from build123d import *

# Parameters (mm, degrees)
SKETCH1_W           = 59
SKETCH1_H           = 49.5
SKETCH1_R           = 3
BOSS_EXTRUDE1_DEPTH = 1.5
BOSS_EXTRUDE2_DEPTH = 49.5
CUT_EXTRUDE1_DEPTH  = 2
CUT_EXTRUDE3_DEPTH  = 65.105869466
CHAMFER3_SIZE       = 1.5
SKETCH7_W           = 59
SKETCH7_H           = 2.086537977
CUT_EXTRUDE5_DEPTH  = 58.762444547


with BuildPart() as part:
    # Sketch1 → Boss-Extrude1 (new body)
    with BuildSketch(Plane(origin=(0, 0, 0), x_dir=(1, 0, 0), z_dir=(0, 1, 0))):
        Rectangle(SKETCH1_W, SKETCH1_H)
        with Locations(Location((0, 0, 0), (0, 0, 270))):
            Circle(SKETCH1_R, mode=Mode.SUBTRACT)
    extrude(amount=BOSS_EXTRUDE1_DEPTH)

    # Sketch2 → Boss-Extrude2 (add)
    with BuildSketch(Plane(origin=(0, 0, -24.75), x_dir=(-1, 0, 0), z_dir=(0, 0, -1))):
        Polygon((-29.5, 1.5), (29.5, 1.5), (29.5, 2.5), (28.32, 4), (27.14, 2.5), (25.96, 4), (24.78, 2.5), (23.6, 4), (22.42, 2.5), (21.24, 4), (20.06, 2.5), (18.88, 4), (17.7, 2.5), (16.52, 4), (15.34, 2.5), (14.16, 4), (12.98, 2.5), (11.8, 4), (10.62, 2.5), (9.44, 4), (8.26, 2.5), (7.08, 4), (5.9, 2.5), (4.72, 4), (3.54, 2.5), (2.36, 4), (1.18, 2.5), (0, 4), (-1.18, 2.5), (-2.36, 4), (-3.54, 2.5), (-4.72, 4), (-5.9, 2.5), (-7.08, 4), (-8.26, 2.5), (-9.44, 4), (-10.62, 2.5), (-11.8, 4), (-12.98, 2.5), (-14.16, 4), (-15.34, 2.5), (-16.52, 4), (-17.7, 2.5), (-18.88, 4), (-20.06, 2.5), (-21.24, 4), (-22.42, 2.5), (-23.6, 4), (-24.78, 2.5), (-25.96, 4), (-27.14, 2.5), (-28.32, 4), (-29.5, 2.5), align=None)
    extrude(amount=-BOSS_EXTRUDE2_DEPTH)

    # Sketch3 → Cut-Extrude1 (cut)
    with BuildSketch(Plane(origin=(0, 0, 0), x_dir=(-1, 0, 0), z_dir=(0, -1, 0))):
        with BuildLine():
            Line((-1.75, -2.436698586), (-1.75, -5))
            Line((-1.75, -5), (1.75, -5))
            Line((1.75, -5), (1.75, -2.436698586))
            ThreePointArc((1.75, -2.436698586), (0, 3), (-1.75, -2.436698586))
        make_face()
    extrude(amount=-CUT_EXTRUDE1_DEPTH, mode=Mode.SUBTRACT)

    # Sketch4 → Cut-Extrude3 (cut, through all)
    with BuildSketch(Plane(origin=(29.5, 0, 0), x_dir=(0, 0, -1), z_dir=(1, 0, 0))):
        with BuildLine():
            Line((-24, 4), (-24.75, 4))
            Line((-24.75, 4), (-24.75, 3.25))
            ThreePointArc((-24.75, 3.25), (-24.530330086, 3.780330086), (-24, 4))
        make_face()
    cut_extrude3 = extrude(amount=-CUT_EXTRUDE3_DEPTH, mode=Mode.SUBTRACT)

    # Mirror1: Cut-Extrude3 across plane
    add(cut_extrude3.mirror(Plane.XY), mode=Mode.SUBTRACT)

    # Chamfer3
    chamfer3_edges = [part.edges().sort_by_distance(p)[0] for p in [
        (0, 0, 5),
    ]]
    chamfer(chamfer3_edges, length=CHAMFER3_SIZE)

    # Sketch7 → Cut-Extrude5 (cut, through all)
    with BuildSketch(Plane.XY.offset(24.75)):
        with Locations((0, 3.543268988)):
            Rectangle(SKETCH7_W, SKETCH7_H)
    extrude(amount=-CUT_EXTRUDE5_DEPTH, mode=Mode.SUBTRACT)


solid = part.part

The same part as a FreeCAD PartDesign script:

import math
import FreeCAD as App
import Part
import Sketcher
Q = App.Units.Quantity


def edges_at(feature, points):
    """Names of the edges that pass closest to the given points."""
    edges = feature.Shape.Edges
    near = lambda p: min(range(len(edges)), key=lambda i: edges[i].distToShape(Part.Vertex(*p))[0])
    return sorted({f"Edge{near(p) + 1}" for p in points})


def add_polygon(sketch, points):
    """Adds a closed chain of lines whose ends are joined by coincident constraints."""
    first, n = sketch.GeometryCount, len(points)
    for a, b in zip(points, points[1:] + points[:1]):
        sketch.addGeometry(Part.LineSegment(App.Vector(*a, 0), App.Vector(*b, 0)), False)
    for i in range(n):
        sketch.addConstraint(Sketcher.Constraint("Coincident", first + i, 2, first + (i + 1) % n, 1))

doc = App.newDocument("Part")
body = doc.addObject("PartDesign::Body", "Body")

sketch1 = body.newObject("Sketcher::SketchObject", "Sketch")
sketch1.AttachmentSupport = (doc.getObject("XZ_Plane"), [""])
sketch1.MapMode = "FlatFace"
add_polygon(sketch1, [(-29.5, -24.75), (-29.5, 24.75), (29.5, 24.75), (29.5, -24.75)])
sketch1.addGeometry(Part.Circle(App.Vector(0, 0, 0), App.Vector(0, 0, 1), 3), False)
sketch1.addConstraint(Sketcher.Constraint("Vertical", 0))
sketch1.addConstraint(Sketcher.Constraint("Horizontal", 1))
sketch1.addConstraint(Sketcher.Constraint("Vertical", 2))
sketch1.addConstraint(Sketcher.Constraint("Horizontal", 3))
sketch1.addConstraint(Sketcher.Constraint("Coincident", 4, 3, -1, 1))
sketch1.addConstraint(Sketcher.Constraint("Symmetric", 0, 2, 2, 2, -1, 1))
sketch1.addConstraint(Sketcher.Constraint("Diameter", 4, Q("6 mm")))
sketch1.addConstraint(Sketcher.Constraint("DistanceX", 1, 1, 1, 2, Q("59 mm")))
sketch1.addConstraint(Sketcher.Constraint("DistanceY", 0, 1, 0, 2, Q("49.5 mm")))
pad1 = body.newObject("PartDesign::Pad", "Pad")
pad1.Profile = sketch1
pad1.Length = 1.5
pad1.Reversed = True

sketch2 = body.newObject("Sketcher::SketchObject", "Sketch001")
sketch2.AttachmentSupport = (doc.getObject("XY_Plane"), [""])
sketch2.MapMode = "FlatFace"
sketch2.AttachmentOffset = App.Placement(App.Vector(0, 0, -24.75), App.Rotation())
add_polygon(sketch2, [(29.5, 1.5), (-29.5, 1.5), (-29.5, 2.5), (-28.32, 4), (-27.14, 2.5), (-25.96, 4), (-24.78, 2.5), (-23.6, 4), (-22.42, 2.5), (-21.24, 4), (-20.06, 2.5), (-18.88, 4), (-17.7, 2.5), (-16.52, 4), (-15.34, 2.5), (-14.16, 4), (-12.98, 2.5), (-11.8, 4), (-10.62, 2.5), (-9.44, 4), (-8.26, 2.5), (-7.08, 4), (-5.9, 2.5), (-4.72, 4), (-3.54, 2.5), (-2.36, 4), (-1.18, 2.5), (0, 4), (1.18, 2.5), (2.36, 4), (3.54, 2.5), (4.72, 4), (5.9, 2.5), (7.08, 4), (8.26, 2.5), (9.44, 4), (10.62, 2.5), (11.8, 4), (12.98, 2.5), (14.16, 4), (15.34, 2.5), (16.52, 4), (17.7, 2.5), (18.88, 4), (20.06, 2.5), (21.24, 4), (22.42, 2.5), (23.6, 4), (24.78, 2.5), (25.96, 4), (27.14, 2.5), (28.32, 4), (29.5, 2.5)])
sketch2.addConstraint(Sketcher.Constraint("Horizontal", 0))
sketch2.addConstraint(Sketcher.Constraint("Vertical", 1))
sketch2.addConstraint(Sketcher.Constraint("Vertical", 52))
sketch2.addConstraint(Sketcher.Constraint("Symmetric", 25, 2, 27, 2, -2))
sketch2.addConstraint(Sketcher.Constraint("Symmetric", 24, 2, 28, 2, -2))
sketch2.addConstraint(Sketcher.Constraint("Symmetric", 23, 2, 29, 2, -2))
sketch2.addConstraint(Sketcher.Constraint("Symmetric", 22, 2, 30, 2, -2))
sketch2.addConstraint(Sketcher.Constraint("Symmetric", 21, 2, 31, 2, -2))
sketch2.addConstraint(Sketcher.Constraint("Symmetric", 20, 2, 32, 2, -2))
sketch2.addConstraint(Sketcher.Constraint("Symmetric", 19, 2, 33, 2, -2))
sketch2.addConstraint(Sketcher.Constraint("Symmetric", 18, 2, 34, 2, -2))
sketch2.addConstraint(Sketcher.Constraint("Symmetric", 17, 2, 35, 2, -2))
sketch2.addConstraint(Sketcher.Constraint("Symmetric", 16, 2, 36, 2, -2))
sketch2.addConstraint(Sketcher.Constraint("Symmetric", 15, 2, 37, 2, -2))
sketch2.addConstraint(Sketcher.Constraint("Symmetric", 14, 2, 38, 2, -2))
sketch2.addConstraint(Sketcher.Constraint("Symmetric", 13, 2, 39, 2, -2))
sketch2.addConstraint(Sketcher.Constraint("Symmetric", 12, 2, 40, 2, -2))
sketch2.addConstraint(Sketcher.Constraint("Symmetric", 11, 2, 41, 2, -2))
sketch2.addConstraint(Sketcher.Constraint("Symmetric", 10, 2, 42, 2, -2))
sketch2.addConstraint(Sketcher.Constraint("Symmetric", 9, 2, 43, 2, -2))
sketch2.addConstraint(Sketcher.Constraint("Symmetric", 8, 2, 44, 2, -2))
sketch2.addConstraint(Sketcher.Constraint("Symmetric", 7, 2, 45, 2, -2))
sketch2.addConstraint(Sketcher.Constraint("Symmetric", 6, 2, 46, 2, -2))
sketch2.addConstraint(Sketcher.Constraint("Symmetric", 5, 2, 47, 2, -2))
sketch2.addConstraint(Sketcher.Constraint("Symmetric", 4, 2, 48, 2, -2))
sketch2.addConstraint(Sketcher.Constraint("Symmetric", 3, 2, 49, 2, -2))
sketch2.addConstraint(Sketcher.Constraint("Symmetric", 2, 2, 50, 2, -2))
sketch2.addConstraint(Sketcher.Constraint("Symmetric", 1, 2, 51, 2, -2))
sketch2.addConstraint(Sketcher.Constraint("PointOnObject", 26, 2, -2))
sketch2.addConstraint(Sketcher.Constraint("Parallel", 2, 4))
sketch2.addConstraint(Sketcher.Constraint("Parallel", 3, 5))
sketch2.addConstraint(Sketcher.Constraint("Parallel", 4, 6))
sketch2.addConstraint(Sketcher.Constraint("Parallel", 5, 7))
sketch2.addConstraint(Sketcher.Constraint("Parallel", 6, 8))
sketch2.addConstraint(Sketcher.Constraint("Parallel", 7, 9))
sketch2.addConstraint(Sketcher.Constraint("Parallel", 8, 10))
sketch2.addConstraint(Sketcher.Constraint("Parallel", 9, 11))
sketch2.addConstraint(Sketcher.Constraint("Parallel", 10, 12))
sketch2.addConstraint(Sketcher.Constraint("Parallel", 11, 13))
sketch2.addConstraint(Sketcher.Constraint("Parallel", 12, 14))
sketch2.addConstraint(Sketcher.Constraint("Parallel", 13, 15))
sketch2.addConstraint(Sketcher.Constraint("Parallel", 14, 16))
sketch2.addConstraint(Sketcher.Constraint("Parallel", 15, 17))
sketch2.addConstraint(Sketcher.Constraint("Parallel", 16, 18))
sketch2.addConstraint(Sketcher.Constraint("Parallel", 17, 19))
sketch2.addConstraint(Sketcher.Constraint("Parallel", 18, 20))
sketch2.addConstraint(Sketcher.Constraint("Parallel", 19, 21))
sketch2.addConstraint(Sketcher.Constraint("Parallel", 20, 22))
sketch2.addConstraint(Sketcher.Constraint("Parallel", 21, 23))
sketch2.addConstraint(Sketcher.Constraint("Parallel", 22, 24))
sketch2.addConstraint(Sketcher.Constraint("Parallel", 23, 25))
sketch2.addConstraint(Sketcher.Constraint("Parallel", 24, 26))
sketch2.addConstraint(Sketcher.Constraint("Parallel", 25, 27))
sketch2.addConstraint(Sketcher.Constraint("Horizontal", 1, 2, 3, 2))
sketch2.addConstraint(Sketcher.Constraint("Horizontal", 2, 2, 4, 2))
sketch2.addConstraint(Sketcher.Constraint("Horizontal", 3, 2, 5, 2))
sketch2.addConstraint(Sketcher.Constraint("Horizontal", 4, 2, 6, 2))
sketch2.addConstraint(Sketcher.Constraint("Horizontal", 5, 2, 7, 2))
sketch2.addConstraint(Sketcher.Constraint("Horizontal", 6, 2, 8, 2))
sketch2.addConstraint(Sketcher.Constraint("Horizontal", 7, 2, 9, 2))
sketch2.addConstraint(Sketcher.Constraint("Horizontal", 8, 2, 10, 2))
sketch2.addConstraint(Sketcher.Constraint("Horizontal", 9, 2, 11, 2))
sketch2.addConstraint(Sketcher.Constraint("Horizontal", 10, 2, 12, 2))
sketch2.addConstraint(Sketcher.Constraint("Horizontal", 11, 2, 13, 2))
sketch2.addConstraint(Sketcher.Constraint("Horizontal", 12, 2, 14, 2))
sketch2.addConstraint(Sketcher.Constraint("Horizontal", 13, 2, 15, 2))
sketch2.addConstraint(Sketcher.Constraint("Horizontal", 14, 2, 16, 2))
sketch2.addConstraint(Sketcher.Constraint("Horizontal", 15, 2, 17, 2))
sketch2.addConstraint(Sketcher.Constraint("Horizontal", 16, 2, 18, 2))
sketch2.addConstraint(Sketcher.Constraint("Horizontal", 17, 2, 19, 2))
sketch2.addConstraint(Sketcher.Constraint("Horizontal", 18, 2, 20, 2))
sketch2.addConstraint(Sketcher.Constraint("Horizontal", 19, 2, 21, 2))
sketch2.addConstraint(Sketcher.Constraint("Horizontal", 20, 2, 22, 2))
sketch2.addConstraint(Sketcher.Constraint("Horizontal", 21, 2, 23, 2))
sketch2.addConstraint(Sketcher.Constraint("Horizontal", 22, 2, 24, 2))
sketch2.addConstraint(Sketcher.Constraint("Horizontal", 23, 2, 25, 2))
sketch2.addConstraint(Sketcher.Constraint("Horizontal", 24, 2, 26, 2))
sketch2.addConstraint(Sketcher.Constraint("DistanceX", 0, 2, 0, 1, Q("59 mm")))
sketch2.addConstraint(Sketcher.Constraint("DistanceY", 1, 1, 1, 2, Q("1 mm")))
sketch2.addConstraint(Sketcher.Constraint("DistanceY", -1, 1, 2, 2, Q("4 mm")))
sketch2.addConstraint(Sketcher.Constraint("DistanceY", -1, 1, 0, 2, Q("1.5 mm")))
pad2 = body.newObject("PartDesign::Pad", "Pad001")
pad2.Profile = sketch2
pad2.Length = 49.5

sketch3 = body.newObject("Sketcher::SketchObject", "Sketch002")
sketch3.AttachmentSupport = (doc.getObject("XZ_Plane"), [""])
sketch3.MapMode = "FlatFace"
sketch3.addGeometry(Part.LineSegment(App.Vector(1.75, 2.436699, 0), App.Vector(1.75, 5, 0)), False)
sketch3.addGeometry(Part.LineSegment(App.Vector(1.75, 5, 0), App.Vector(-1.75, 5, 0)), False)
sketch3.addGeometry(Part.LineSegment(App.Vector(-1.75, 5, 0), App.Vector(-1.75, 2.436699, 0)), False)
sketch3.addGeometry(Part.ArcOfCircle(Part.Circle(App.Vector(0, 0, 0), App.Vector(0, 0, 1), 3), math.radians(125.685335), math.radians(414.314665)), False)
sketch3.addConstraint(Sketcher.Constraint("Coincident", 0, 2, 1, 1))
sketch3.addConstraint(Sketcher.Constraint("Coincident", 1, 2, 2, 1))
sketch3.addConstraint(Sketcher.Constraint("Coincident", 2, 2, 3, 1))
sketch3.addConstraint(Sketcher.Constraint("Coincident", 3, 2, 0, 1))
sketch3.addConstraint(Sketcher.Constraint("Vertical", 0))
sketch3.addConstraint(Sketcher.Constraint("Horizontal", 1))
sketch3.addConstraint(Sketcher.Constraint("Vertical", 2))
sketch3.addConstraint(Sketcher.Constraint("Coincident", 3, 3, -1, 1))
sketch3.addConstraint(Sketcher.Constraint("Horizontal", 2, 2, 3, 2))
sketch3.addConstraint(Sketcher.Constraint("Radius", 3, Q("3 mm")))
sketch3.addConstraint(Sketcher.Constraint("DistanceX", 1, 2, 1, 1, Q("3.5 mm")))
sketch3.addConstraint(Sketcher.Constraint("DistanceY", -1, 1, 0, 2, Q("5 mm")))
pocket1 = body.newObject("PartDesign::Pocket", "Pocket")
pocket1.Profile = sketch3
pocket1.Length = 2

sketch4 = body.newObject("Sketcher::SketchObject", "Sketch003")
sketch4.AttachmentSupport = (doc.getObject("YZ_Plane"), [""])
sketch4.MapMode = "FlatFace"
sketch4.AttachmentOffset = App.Placement(App.Vector(0, 0, 29.5), App.Rotation())
sketch4.addGeometry(Part.LineSegment(App.Vector(4, 24, 0), App.Vector(4, 24.75, 0)), False)
sketch4.addGeometry(Part.LineSegment(App.Vector(4, 24.75, 0), App.Vector(3.25, 24.75, 0)), False)
sketch4.addGeometry(Part.ArcOfCircle(Part.Circle(App.Vector(3.25, 24, 0), App.Vector(0, 0, 1), 0.75), math.radians(0), math.radians(90)), False)
sketch4.addConstraint(Sketcher.Constraint("Coincident", 0, 2, 1, 1))
sketch4.addConstraint(Sketcher.Constraint("Tangent", 1, 2, 2, 2))
sketch4.addConstraint(Sketcher.Constraint("Tangent", 2, 1, 0, 1))
sketch4.addConstraint(Sketcher.Constraint("Vertical", 0))
sketch4.addConstraint(Sketcher.Constraint("Horizontal", 1))
sketch4.addConstraint(Sketcher.Constraint("Radius", 2, Q("0.75 mm")))
sketch4.addConstraint(Sketcher.Constraint("DistanceY", -1, 1, 2, 3, Q("24 mm")))
sketch4.addConstraint(Sketcher.Constraint("DistanceX", -1, 1, 0, 2, Q("4 mm")))
pocket2 = body.newObject("PartDesign::Pocket", "Pocket001")
pocket2.Profile = sketch4
pocket2.Type = "ThroughAll"
doc.recompute()

mirrored = body.newObject("PartDesign::Mirrored", "Mirrored")
mirrored.Originals = [pocket2]
mirrored.MirrorPlane = (doc.getObject("XY_Plane"), [""])
body.Tip = mirrored
doc.recompute()

chamfer = body.newObject("PartDesign::Chamfer", "Chamfer")
chamfer.Base = (mirrored, edges_at(mirrored, [(0, 0, 5)]))
chamfer.Size = 1.5

sketch5 = body.newObject("Sketcher::SketchObject", "Sketch004")
sketch5.AttachmentSupport = (doc.getObject("XY_Plane"), [""])
sketch5.MapMode = "FlatFace"
sketch5.AttachmentOffset = App.Placement(App.Vector(0, 0, 24.75), App.Rotation())
add_polygon(sketch5, [(-29.5, 4.586538), (-29.5, 2.5), (29.5, 2.5), (29.5, 4.586538)])
sketch5.addConstraint(Sketcher.Constraint("Vertical", 0))
sketch5.addConstraint(Sketcher.Constraint("Horizontal", 1))
sketch5.addConstraint(Sketcher.Constraint("Vertical", 2))
sketch5.addConstraint(Sketcher.Constraint("Horizontal", 3))
sketch5.addConstraint(Sketcher.Constraint("DistanceX", 1, 1, 1, 2, Q("59 mm")))
sketch5.addConstraint(Sketcher.Constraint("DistanceX", 0, 2, -1, 1, Q("29.5 mm")))
sketch5.addConstraint(Sketcher.Constraint("DistanceY", -1, 1, 0, 2, Q("2.5 mm")))
sketch5.addConstraint(Sketcher.Constraint("DistanceY", 0, 2, 0, 1, Q("2.086538 mm")))
pocket3 = body.newObject("PartDesign::Pocket", "Pocket002")
pocket3.Profile = sketch5
pocket3.Type = "ThroughAll"

doc.recompute()
